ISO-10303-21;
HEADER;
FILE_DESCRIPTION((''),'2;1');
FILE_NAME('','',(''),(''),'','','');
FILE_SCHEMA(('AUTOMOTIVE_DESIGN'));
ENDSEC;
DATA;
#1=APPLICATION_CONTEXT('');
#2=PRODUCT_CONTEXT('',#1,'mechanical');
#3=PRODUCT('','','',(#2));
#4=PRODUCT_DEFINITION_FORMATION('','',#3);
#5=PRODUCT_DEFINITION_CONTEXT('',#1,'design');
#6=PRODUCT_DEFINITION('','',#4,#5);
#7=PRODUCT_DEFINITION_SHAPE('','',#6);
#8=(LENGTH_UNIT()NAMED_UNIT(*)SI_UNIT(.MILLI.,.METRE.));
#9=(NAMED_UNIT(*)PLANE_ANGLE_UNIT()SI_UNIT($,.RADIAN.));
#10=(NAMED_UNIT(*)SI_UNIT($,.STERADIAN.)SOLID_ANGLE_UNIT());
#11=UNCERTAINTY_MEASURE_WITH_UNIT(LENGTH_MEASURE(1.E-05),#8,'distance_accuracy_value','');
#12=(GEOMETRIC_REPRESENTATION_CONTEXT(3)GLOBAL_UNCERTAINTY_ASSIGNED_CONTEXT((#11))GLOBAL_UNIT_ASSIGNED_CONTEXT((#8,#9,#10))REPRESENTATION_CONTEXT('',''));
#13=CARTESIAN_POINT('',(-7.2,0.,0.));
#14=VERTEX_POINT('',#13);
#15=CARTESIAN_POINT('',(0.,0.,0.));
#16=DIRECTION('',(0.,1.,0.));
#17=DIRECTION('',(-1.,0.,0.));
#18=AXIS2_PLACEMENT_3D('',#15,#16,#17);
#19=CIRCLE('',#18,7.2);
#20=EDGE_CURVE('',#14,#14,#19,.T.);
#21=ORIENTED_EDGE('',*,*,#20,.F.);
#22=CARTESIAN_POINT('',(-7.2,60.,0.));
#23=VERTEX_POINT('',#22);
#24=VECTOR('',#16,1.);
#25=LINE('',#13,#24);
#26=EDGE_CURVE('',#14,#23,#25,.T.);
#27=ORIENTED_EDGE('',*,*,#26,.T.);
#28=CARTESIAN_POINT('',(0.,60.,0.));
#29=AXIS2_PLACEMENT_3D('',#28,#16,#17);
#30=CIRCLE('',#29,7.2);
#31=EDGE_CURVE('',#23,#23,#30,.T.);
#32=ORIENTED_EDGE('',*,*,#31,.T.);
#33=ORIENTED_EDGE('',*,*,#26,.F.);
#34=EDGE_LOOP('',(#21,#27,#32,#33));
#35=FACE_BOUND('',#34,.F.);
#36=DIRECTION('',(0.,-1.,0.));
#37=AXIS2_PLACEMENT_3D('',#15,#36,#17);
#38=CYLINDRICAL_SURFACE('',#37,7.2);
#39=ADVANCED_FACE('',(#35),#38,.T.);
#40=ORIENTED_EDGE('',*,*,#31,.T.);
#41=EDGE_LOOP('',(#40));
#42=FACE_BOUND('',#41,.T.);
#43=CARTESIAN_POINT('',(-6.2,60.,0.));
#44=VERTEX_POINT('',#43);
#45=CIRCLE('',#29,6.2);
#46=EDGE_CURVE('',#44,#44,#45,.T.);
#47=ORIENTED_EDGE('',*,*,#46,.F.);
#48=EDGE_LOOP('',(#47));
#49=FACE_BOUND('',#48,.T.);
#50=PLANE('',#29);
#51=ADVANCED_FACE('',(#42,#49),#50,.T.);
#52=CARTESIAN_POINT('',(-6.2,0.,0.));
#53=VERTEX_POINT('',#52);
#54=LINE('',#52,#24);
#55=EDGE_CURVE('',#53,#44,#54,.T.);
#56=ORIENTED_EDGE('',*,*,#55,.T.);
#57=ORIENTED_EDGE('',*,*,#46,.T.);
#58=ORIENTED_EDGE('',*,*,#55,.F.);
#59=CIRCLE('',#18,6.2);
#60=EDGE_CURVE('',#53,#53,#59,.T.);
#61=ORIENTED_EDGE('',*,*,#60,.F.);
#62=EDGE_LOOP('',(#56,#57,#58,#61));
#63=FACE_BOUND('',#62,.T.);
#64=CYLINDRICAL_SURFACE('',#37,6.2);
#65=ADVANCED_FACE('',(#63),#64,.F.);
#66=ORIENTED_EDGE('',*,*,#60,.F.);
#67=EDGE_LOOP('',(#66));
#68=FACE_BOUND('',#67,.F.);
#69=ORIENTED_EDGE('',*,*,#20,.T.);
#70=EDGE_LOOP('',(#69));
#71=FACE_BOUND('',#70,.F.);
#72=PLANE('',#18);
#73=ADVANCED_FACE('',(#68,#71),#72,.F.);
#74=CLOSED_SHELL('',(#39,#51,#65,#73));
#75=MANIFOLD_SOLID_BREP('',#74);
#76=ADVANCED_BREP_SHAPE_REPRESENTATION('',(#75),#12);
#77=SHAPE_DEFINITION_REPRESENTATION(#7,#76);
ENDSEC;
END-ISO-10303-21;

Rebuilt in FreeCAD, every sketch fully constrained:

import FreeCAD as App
import Part
import Sketcher
Q = App.Units.Quantity

doc = App.newDocument("Part")
body = doc.addObject("PartDesign::Body", "Body")

# Sketch on XZ plane
sketch1 = body.newObject("Sketcher::SketchObject", "Sketch")
sketch1.AttachmentSupport = (doc.getObject("XZ_Plane"), [""])
sketch1.MapMode = "FlatFace"
sketch1.addGeometry(Part.Circle(App.Vector(0, 0, 0), App.Vector(0, 0, 1), 7), False)
sketch1.addGeometry(Part.Circle(App.Vector(0, 0, 0), App.Vector(0, 0, 1), 6), False)
sketch1.addConstraint(Sketcher.Constraint("Coincident", 0, 3, -1, 1))
sketch1.addConstraint(Sketcher.Constraint("Coincident", 1, 3, -1, 1))
sketch1.addConstraint(Sketcher.Constraint("Diameter", 1, Q("12.4 mm")))
sketch1.addConstraint(Sketcher.Constraint("Diameter", 0, Q("14.4 mm")))
pad1 = body.newObject("PartDesign::Pad", "Pad")
pad1.Profile = sketch1
pad1.Length = 60
pad1.Reversed = True

doc.recompute()
